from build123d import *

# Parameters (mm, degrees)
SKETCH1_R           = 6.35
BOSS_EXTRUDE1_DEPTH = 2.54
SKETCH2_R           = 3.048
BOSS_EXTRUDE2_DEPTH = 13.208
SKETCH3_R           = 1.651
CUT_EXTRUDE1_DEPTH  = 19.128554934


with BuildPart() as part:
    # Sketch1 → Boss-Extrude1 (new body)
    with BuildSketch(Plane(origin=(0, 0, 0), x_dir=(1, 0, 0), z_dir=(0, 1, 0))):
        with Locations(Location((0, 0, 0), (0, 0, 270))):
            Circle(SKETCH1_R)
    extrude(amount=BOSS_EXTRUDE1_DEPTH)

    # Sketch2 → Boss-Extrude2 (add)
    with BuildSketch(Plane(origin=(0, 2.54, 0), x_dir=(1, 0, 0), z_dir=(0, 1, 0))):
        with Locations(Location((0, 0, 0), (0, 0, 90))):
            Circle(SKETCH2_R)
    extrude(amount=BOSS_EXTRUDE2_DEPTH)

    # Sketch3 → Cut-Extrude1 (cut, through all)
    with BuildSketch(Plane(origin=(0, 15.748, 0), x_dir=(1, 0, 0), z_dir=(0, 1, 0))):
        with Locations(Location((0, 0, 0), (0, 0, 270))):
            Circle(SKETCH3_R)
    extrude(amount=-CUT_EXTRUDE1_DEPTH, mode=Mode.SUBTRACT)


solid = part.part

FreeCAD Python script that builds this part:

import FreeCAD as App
import Part
import Sketcher
Q = App.Units.Quantity

doc = App.newDocument("Part")
body = doc.addObject("PartDesign::Body", "Body")

# Sketch on XZ plane
sketch1 = body.newObject("Sketcher::SketchObject", "Sketch")
sketch1.AttachmentSupport = (doc.getObject("XZ_Plane"), [""])
sketch1.MapMode = "FlatFace"
sketch1.addGeometry(Part.Circle(App.Vector(0, 0, 0), App.Vector(0, 0, 1), 6), False)
sketch1.addConstraint(Sketcher.Constraint("Coincident", 0, 3, -1, 1))
sketch1.addConstraint(Sketcher.Constraint("Diameter", 0, Q("0.5 in")))
pad1 = body.newObject("PartDesign::Pad", "Pad")
pad1.Profile = sketch1
pad1.Length = Q("0.1 in")
pad1.Reversed = True

# Sketch on XZ plane
sketch2 = body.newObject("Sketcher::SketchObject", "Sketch001")
sketch2.AttachmentSupport = (doc.getObject("XZ_Plane"), [""])
sketch2.MapMode = "FlatFace"
sketch2.AttachmentOffset = App.Placement(App.Vector(0, 0, -0.1 * 25.4), App.Rotation())
sketch2.addGeometry(Part.Circle(App.Vector(0, 0, 0), App.Vector(0, 0, 1), 3), False)
sketch2.addConstraint(Sketcher.Constraint("Coincident", 0, 3, -1, 1))
sketch2.addConstraint(Sketcher.Constraint("Diameter", 0, Q("0.24 in")))
pad2 = body.newObject("PartDesign::Pad", "Pad001")
pad2.Profile = sketch2
pad2.Length = Q("0.52 in")
pad2.Reversed = True

# Sketch on XZ plane
sketch3 = body.newObject("Sketcher::SketchObject", "Sketch002")
sketch3.AttachmentSupport = (doc.getObject("XZ_Plane"), [""])
sketch3.MapMode = "FlatFace"
sketch3.AttachmentOffset = App.Placement(App.Vector(0, 0, -0.62 * 25.4), App.Rotation())
sketch3.addGeometry(Part.Circle(App.Vector(0, 0, 0), App.Vector(0, 0, 1), 1.7), False)
sketch3.addConstraint(Sketcher.Constraint("Coincident", 0, 3, -1, 1))
sketch3.addConstraint(Sketcher.Constraint("Diameter", 0, Q("0.13 in")))
pocket1 = body.newObject("PartDesign::Pocket", "Pocket")
pocket1.Profile = sketch3
pocket1.Type = "ThroughAll"
pocket1.Reversed = True

doc.recompute()
